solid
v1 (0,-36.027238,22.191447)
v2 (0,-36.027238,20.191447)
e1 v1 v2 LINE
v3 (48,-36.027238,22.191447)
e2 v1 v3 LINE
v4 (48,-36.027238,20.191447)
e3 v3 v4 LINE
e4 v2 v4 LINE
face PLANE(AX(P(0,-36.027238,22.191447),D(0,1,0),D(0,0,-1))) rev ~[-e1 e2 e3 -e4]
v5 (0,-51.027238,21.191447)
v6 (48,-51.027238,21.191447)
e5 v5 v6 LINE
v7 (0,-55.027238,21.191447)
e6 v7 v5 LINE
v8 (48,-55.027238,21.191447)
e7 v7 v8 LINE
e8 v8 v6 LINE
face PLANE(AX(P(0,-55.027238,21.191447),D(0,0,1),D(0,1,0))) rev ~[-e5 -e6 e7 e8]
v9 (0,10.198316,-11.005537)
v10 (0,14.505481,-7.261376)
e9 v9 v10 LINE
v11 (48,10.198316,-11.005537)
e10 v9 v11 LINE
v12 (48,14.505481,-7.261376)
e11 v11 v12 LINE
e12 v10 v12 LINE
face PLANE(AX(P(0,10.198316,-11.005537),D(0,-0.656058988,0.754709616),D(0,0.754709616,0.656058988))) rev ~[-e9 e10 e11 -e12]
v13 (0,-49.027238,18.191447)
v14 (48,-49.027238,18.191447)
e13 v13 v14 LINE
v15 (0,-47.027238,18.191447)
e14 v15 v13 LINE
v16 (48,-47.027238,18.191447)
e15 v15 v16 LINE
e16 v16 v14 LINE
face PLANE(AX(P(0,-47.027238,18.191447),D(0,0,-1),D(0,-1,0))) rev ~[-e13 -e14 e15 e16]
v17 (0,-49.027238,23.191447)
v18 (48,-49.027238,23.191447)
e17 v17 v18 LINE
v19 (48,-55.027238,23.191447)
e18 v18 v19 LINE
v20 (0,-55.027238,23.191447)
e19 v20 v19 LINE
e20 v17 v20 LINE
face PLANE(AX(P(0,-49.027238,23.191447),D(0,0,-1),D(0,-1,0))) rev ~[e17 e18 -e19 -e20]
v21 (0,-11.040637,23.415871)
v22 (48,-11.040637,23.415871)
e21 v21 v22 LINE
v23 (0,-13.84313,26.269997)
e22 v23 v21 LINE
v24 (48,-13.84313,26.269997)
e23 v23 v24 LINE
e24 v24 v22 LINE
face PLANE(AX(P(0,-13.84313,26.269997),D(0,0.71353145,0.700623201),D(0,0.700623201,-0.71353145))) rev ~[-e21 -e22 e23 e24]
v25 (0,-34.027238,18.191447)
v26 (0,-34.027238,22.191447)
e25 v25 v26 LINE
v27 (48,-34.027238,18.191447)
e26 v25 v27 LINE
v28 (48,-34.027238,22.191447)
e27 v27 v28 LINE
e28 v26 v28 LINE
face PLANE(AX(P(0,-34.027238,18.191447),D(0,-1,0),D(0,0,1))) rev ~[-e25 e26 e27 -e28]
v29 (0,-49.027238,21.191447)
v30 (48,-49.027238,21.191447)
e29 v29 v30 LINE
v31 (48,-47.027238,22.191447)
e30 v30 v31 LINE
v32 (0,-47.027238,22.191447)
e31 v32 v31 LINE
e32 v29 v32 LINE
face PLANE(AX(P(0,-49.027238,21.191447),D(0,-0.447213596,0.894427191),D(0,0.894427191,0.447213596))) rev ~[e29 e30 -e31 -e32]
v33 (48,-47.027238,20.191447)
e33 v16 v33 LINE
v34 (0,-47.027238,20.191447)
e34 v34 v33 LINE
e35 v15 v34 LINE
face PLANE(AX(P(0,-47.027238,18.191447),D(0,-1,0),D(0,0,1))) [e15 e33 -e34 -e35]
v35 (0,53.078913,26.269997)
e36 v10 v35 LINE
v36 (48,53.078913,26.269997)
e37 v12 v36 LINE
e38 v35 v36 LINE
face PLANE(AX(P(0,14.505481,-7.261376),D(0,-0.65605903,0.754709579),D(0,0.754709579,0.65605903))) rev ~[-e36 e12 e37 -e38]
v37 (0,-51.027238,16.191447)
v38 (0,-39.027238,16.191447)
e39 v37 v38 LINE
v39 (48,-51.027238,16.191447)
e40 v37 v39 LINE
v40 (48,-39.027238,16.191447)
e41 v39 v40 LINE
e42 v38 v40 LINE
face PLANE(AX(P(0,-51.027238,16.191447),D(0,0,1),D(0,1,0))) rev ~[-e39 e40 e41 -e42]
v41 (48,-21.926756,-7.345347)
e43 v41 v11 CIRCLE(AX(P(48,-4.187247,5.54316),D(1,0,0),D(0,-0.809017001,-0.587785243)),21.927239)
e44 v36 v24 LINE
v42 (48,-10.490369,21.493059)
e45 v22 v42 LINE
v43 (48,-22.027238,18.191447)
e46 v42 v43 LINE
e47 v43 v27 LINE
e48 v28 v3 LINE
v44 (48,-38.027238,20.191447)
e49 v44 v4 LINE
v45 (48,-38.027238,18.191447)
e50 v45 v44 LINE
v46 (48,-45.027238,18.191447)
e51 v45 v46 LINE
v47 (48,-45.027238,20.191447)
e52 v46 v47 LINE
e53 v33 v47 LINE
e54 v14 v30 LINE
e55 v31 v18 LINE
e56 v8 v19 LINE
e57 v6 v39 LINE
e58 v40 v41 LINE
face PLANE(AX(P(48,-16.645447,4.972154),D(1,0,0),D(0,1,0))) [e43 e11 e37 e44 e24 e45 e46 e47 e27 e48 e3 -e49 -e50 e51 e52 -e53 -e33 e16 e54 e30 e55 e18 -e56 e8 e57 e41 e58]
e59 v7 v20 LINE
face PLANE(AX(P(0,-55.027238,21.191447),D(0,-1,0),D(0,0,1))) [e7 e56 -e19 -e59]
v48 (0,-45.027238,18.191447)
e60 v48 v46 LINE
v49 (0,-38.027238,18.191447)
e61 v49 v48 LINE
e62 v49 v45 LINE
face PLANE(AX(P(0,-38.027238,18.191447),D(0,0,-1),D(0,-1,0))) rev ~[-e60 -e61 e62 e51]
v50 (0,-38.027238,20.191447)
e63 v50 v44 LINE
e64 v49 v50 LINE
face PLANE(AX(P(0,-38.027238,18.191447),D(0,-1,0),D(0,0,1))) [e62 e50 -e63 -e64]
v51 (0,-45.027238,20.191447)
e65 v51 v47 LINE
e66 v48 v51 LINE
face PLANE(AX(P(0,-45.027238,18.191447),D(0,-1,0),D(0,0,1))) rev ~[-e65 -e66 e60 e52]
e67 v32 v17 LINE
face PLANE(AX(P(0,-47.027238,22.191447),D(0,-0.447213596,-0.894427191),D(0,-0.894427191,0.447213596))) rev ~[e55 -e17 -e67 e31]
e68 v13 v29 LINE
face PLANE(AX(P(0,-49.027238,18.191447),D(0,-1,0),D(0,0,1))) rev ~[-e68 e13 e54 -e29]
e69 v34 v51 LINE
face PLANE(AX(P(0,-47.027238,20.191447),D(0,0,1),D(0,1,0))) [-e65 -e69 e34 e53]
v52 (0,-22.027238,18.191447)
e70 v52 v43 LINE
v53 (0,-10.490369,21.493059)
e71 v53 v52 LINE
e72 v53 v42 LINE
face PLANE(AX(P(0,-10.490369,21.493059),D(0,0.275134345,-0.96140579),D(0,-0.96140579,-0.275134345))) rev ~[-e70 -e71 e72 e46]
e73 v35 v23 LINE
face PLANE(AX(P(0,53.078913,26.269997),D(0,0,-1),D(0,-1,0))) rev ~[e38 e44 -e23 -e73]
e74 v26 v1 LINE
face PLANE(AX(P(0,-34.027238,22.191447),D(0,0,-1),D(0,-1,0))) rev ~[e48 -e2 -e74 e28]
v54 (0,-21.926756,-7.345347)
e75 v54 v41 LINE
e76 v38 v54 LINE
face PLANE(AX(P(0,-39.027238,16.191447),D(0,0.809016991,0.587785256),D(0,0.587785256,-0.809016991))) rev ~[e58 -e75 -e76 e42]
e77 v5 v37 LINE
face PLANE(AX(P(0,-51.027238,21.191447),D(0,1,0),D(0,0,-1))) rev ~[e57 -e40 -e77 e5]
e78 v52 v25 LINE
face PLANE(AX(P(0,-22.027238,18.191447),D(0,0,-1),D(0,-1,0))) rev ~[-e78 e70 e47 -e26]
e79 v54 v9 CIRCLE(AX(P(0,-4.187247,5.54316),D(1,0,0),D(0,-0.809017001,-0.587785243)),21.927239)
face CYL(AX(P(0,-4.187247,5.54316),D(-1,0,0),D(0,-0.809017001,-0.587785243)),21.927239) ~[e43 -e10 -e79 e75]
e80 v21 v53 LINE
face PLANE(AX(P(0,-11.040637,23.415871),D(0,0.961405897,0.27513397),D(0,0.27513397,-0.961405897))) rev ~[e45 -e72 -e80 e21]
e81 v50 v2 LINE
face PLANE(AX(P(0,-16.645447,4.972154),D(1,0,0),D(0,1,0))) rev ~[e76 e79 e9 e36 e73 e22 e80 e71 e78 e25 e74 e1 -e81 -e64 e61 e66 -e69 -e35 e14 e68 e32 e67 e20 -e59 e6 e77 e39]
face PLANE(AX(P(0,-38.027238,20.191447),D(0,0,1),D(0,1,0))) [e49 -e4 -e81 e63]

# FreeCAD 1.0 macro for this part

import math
import FreeCAD as App
import Part
import Sketcher

V = App.Vector
Q = App.Units.Quantity

doc = App.newDocument("Part")
params = doc.addObject("Spreadsheet::Sheet", "Params")
for row, (alias, value) in enumerate([
    ("sketch1_width", "12 mm"),
    ("sketch1_width2", "2 mm"),
    ("sketch1_width3", "7 mm"),
    ("sketch1_width4", "6 mm"),
    ("sketch1_height", "5 mm"),
    ("pad1_length", "48 mm"),
], start=1):
    params.set(f"A{row}", alias)
    params.set(f"B{row}", "=" + value)
    params.setAlias(f"B{row}", alias)

body = doc.addObject("PartDesign::Body", "Body")

# Sketch on YZ plane
sketch1 = body.newObject("Sketcher::SketchObject", "Sketch")
sketch1.AttachmentSupport = (doc.getObject("YZ_Plane"), [""])
sketch1.MapMode = "FlatFace"
sketch1.addGeometry([
    Part.LineSegment(V(10.2, -11, 0), V(14.5, -7.3, 0)),  # 0
    Part.LineSegment(V(14.5, -7.3, 0), V(53.1, 26.3, 0)),  # 1
    Part.LineSegment(V(53.1, 26.3, 0), V(-13.8, 26.3, 0)),  # 2
    Part.LineSegment(V(-13.8, 26.3, 0), V(-11, 23.4, 0)),  # 3
    Part.LineSegment(V(-11, 23.4, 0), V(-10.5, 21.5, 0)),  # 4
    Part.LineSegment(V(-10.5, 21.5, 0), V(-22, 18.2, 0)),  # 5
    Part.LineSegment(V(-22, 18.2, 0), V(-34, 18.2, 0)),  # 6
    Part.LineSegment(V(-34, 18.2, 0), V(-34, 22.2, 0)),  # 7
    Part.LineSegment(V(-34, 22.2, 0), V(-36, 22.2, 0)),  # 8
    Part.LineSegment(V(-36, 22.2, 0), V(-36, 20.2, 0)),  # 9
    Part.LineSegment(V(-36, 20.2, 0), V(-38, 20.2, 0)),  # 10
    Part.LineSegment(V(-38, 20.2, 0), V(-38, 18.2, 0)),  # 11
    Part.LineSegment(V(-38, 18.2, 0), V(-45, 18.2, 0)),  # 12
    Part.LineSegment(V(-45, 18.2, 0), V(-45, 20.2, 0)),  # 13
    Part.LineSegment(V(-45, 20.2, 0), V(-47, 20.2, 0)),  # 14
    Part.LineSegment(V(-47, 20.2, 0), V(-47, 18.2, 0)),  # 15
    Part.LineSegment(V(-47, 18.2, 0), V(-49, 18.2, 0)),  # 16
    Part.LineSegment(V(-49, 18.2, 0), V(-49, 21.2, 0)),  # 17
    Part.LineSegment(V(-49, 21.2, 0), V(-47, 22.2, 0)),  # 18
    Part.LineSegment(V(-47, 22.2, 0), V(-49, 23.2, 0)),  # 19
    Part.LineSegment(V(-49, 23.2, 0), V(-55, 23.2, 0)),  # 20
    Part.LineSegment(V(-55, 23.2, 0), V(-55, 21.2, 0)),  # 21
    Part.LineSegment(V(-55, 21.2, 0), V(-51, 21.2, 0)),  # 22
    Part.LineSegment(V(-51, 21.2, 0), V(-51, 16.2, 0)),  # 23
    Part.LineSegment(V(-51, 16.2, 0), V(-39, 16.2, 0)),  # 24
    Part.LineSegment(V(-39, 16.2, 0), V(-21.9, -7.3, 0)),  # 25
    Part.ArcOfCircle(Part.Circle(V(-4.2, 5.5, 0), V(0, 0, 1), 21.9), math.radians(-144), math.radians(-49)),  # 26
], False)
sketch1.addConstraint([
    Sketcher.Constraint("Coincident", 0, 2, 1, 1),
    Sketcher.Constraint("Coincident", 1, 2, 2, 1),
    Sketcher.Constraint("Coincident", 2, 2, 3, 1),
    Sketcher.Constraint("Coincident", 3, 2, 4, 1),
    Sketcher.Constraint("Coincident", 4, 2, 5, 1),
    Sketcher.Constraint("Coincident", 5, 2, 6, 1),
    Sketcher.Constraint("Coincident", 6, 2, 7, 1),
    Sketcher.Constraint("Coincident", 7, 2, 8, 1),
    Sketcher.Constraint("Coincident", 8, 2, 9, 1),
    Sketcher.Constraint("Coincident", 9, 2, 10, 1),
    Sketcher.Constraint("Coincident", 10, 2, 11, 1),
    Sketcher.Constraint("Coincident", 11, 2, 12, 1),
    Sketcher.Constraint("Coincident", 12, 2, 13, 1),
    Sketcher.Constraint("Coincident", 13, 2, 14, 1),
    Sketcher.Constraint("Coincident", 14, 2, 15, 1),
    Sketcher.Constraint("Coincident", 15, 2, 16, 1),
    Sketcher.Constraint("Coincident", 16, 2, 17, 1),
    Sketcher.Constraint("Coincident", 17, 2, 18, 1),
    Sketcher.Constraint("Coincident", 18, 2, 19, 1),
    Sketcher.Constraint("Coincident", 19, 2, 20, 1),
    Sketcher.Constraint("Coincident", 20, 2, 21, 1),
    Sketcher.Constraint("Coincident", 21, 2, 22, 1),
    Sketcher.Constraint("Coincident", 22, 2, 23, 1),
    Sketcher.Constraint("Coincident", 23, 2, 24, 1),
    Sketcher.Constraint("Coincident", 24, 2, 25, 1),
    Sketcher.Constraint("Tangent", 25, 2, 26, 1),
    Sketcher.Constraint("Tangent", 26, 2, 0, 1),
    Sketcher.Constraint("Horizontal", 2),
    Sketcher.Constraint("Horizontal", 6),
    Sketcher.Constraint("Vertical", 7),
    Sketcher.Constraint("Horizontal", 8),
    Sketcher.Constraint("Vertical", 9),
    Sketcher.Constraint("Horizontal", 10),
    Sketcher.Constraint("Vertical", 11),
    Sketcher.Constraint("Horizontal", 12),
    Sketcher.Constraint("Vertical", 13),
    Sketcher.Constraint("Horizontal", 14),
    Sketcher.Constraint("Vertical", 15),
    Sketcher.Constraint("Horizontal", 16),
    Sketcher.Constraint("Vertical", 17),
    Sketcher.Constraint("Horizontal", 20),
    Sketcher.Constraint("Vertical", 21),
    Sketcher.Constraint("Horizontal", 22),
    Sketcher.Constraint("Vertical", 23),
    Sketcher.Constraint("Horizontal", 24),
    Sketcher.Constraint("Parallel", 0, 1),
    Sketcher.Constraint("Perpendicular", 4, 5),
    Sketcher.Constraint("Horizontal", 6, 2, 11, 2),
    Sketcher.Constraint("Horizontal", 10, 2, 13, 2),
    Sketcher.Constraint("Horizontal", 12, 2, 15, 2),
    Sketcher.Constraint("Horizontal", 8, 2, 18, 2),
    Sketcher.Constraint("Horizontal", 17, 2, 21, 2),
    Sketcher.Constraint("Vertical", 15, 2, 18, 2),
    Sketcher.Constraint("Vertical", 17, 2, 19, 2),
    Sketcher.Constraint("Equal", 8, 10),
    Sketcher.Constraint("Equal", 10, 14),
    Sketcher.Constraint("Equal", 14, 16),
    Sketcher.Constraint("Equal", 6, 24),
    Sketcher.Constraint("Equal", 22, 7),
    Sketcher.Constraint("Equal", 16, 9),
    Sketcher.Constraint("Equal", 9, 11),
    Sketcher.Constraint("Equal", 15, 21),
    Sketcher.Constraint("Equal", 18, 19),
    Sketcher.Constraint("DistanceX", 6, 2, 6, 1, 12.0),
    Sketcher.Constraint("DistanceX", 8, 2, 8, 1, 2.0),
    Sketcher.Constraint("DistanceX", 12, 2, 12, 1, 7.0),
    Sketcher.Constraint("DistanceX", 20, 2, 20, 1, 6.0),
    Sketcher.Constraint("DistanceY", 23, 2, 23, 1, 5.0),
    Sketcher.Constraint("Angle", 0, Q("40.999997 deg")),
    Sketcher.Constraint("Angle", 25, Q("-54 deg")),
    Sketcher.Constraint("Distance", 3, 4.0),
    Sketcher.Constraint("Distance", 4, 2.0),
    Sketcher.Constraint("Distance", 5, 12.0),
    Sketcher.Constraint("Angle", 4, Q("-74.030002 deg")),
    Sketcher.Constraint("Radius", 26, 21.927239),
    Sketcher.Constraint("Distance", 1, 51.110299),
    Sketcher.Constraint("DistanceY", 26, 3, 4, 2, 15.949899),
    Sketcher.Constraint("Distance", 0, 5.707049),
    Sketcher.Constraint("DistanceY", -1, 1, 26, 3, 5.54316),
    Sketcher.Constraint("DistanceX", -1, 1, 0, 2, 14.505481),
])
sketch1.setExpression("Constraints[63]", "Params.sketch1_width")
sketch1.setExpression("Constraints[64]", "Params.sketch1_width2")
sketch1.setExpression("Constraints[65]", "Params.sketch1_width3")
sketch1.setExpression("Constraints[66]", "Params.sketch1_width4")
sketch1.setExpression("Constraints[67]", "Params.sketch1_height")
pad1 = body.newObject("PartDesign::Pad", "Pad")
pad1.Profile = sketch1
pad1.setExpression("Length", "Params.pad1_length")

doc.recompute()
